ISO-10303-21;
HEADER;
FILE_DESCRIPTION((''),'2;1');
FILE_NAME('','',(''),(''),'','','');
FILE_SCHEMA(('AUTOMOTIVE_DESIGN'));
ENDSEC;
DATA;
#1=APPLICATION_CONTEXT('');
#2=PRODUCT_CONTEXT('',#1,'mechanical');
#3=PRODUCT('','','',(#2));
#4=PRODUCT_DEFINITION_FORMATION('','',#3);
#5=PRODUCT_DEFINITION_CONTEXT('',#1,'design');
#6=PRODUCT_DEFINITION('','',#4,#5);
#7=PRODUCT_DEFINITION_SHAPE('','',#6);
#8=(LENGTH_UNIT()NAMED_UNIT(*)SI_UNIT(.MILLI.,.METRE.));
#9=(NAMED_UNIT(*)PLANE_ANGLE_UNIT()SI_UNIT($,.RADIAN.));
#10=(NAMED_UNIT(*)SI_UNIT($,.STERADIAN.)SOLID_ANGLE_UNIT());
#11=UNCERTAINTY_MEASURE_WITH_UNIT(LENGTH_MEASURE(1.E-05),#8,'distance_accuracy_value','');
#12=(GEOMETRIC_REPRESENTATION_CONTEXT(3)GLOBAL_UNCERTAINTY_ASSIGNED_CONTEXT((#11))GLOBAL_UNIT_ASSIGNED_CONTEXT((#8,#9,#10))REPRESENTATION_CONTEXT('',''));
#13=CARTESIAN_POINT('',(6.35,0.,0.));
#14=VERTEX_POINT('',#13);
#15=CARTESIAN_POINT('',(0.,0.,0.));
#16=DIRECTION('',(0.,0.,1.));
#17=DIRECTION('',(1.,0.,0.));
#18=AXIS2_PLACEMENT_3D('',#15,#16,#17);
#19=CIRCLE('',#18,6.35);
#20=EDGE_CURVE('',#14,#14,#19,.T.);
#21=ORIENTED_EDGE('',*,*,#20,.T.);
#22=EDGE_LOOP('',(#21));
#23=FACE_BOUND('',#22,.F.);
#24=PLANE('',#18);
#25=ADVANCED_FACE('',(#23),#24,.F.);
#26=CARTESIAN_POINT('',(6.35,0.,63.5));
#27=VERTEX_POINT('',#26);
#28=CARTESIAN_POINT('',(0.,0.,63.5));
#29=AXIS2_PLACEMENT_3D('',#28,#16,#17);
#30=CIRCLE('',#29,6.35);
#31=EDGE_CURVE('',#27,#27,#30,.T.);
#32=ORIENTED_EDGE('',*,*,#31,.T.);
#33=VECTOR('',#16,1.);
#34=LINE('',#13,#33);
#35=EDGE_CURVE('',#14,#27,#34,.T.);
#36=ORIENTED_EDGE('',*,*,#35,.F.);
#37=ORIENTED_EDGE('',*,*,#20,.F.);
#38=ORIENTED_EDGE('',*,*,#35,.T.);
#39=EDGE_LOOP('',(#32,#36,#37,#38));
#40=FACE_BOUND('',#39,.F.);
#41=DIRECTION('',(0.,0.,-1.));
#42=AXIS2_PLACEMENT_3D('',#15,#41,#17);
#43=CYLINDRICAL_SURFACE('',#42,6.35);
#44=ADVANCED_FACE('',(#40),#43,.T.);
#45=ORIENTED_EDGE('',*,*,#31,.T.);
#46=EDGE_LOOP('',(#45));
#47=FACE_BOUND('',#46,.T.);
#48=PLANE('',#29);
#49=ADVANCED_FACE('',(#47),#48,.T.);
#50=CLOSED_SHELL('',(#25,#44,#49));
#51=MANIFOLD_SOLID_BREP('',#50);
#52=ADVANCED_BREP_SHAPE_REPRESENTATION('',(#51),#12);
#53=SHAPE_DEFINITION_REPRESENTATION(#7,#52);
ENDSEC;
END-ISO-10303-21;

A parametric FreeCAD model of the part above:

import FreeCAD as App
import Part
import Sketcher

V = App.Vector
Q = App.Units.Quantity

doc = App.newDocument("Part")
body = doc.addObject("PartDesign::Body", "Body")

# Sketch on XY plane
sketch1 = body.newObject("Sketcher::SketchObject", "Sketch")
sketch1.AttachmentSupport = (doc.getObject("XY_Plane"), [""])
sketch1.MapMode = "FlatFace"
sketch1.addGeometry(Part.Circle(V(0, 0, 0), V(0, 0, 1), 6), False)
sketch1.addConstraint(Sketcher.Constraint("Coincident", 0, 3, -1, 1))
sketch1.addConstraint(Sketcher.Constraint("Diameter", 0, Q("0.5 in")))
pad1 = body.newObject("PartDesign::Pad", "Pad")
pad1.Profile = sketch1
pad1.Length = Q("2.5 in")

doc.recompute()
